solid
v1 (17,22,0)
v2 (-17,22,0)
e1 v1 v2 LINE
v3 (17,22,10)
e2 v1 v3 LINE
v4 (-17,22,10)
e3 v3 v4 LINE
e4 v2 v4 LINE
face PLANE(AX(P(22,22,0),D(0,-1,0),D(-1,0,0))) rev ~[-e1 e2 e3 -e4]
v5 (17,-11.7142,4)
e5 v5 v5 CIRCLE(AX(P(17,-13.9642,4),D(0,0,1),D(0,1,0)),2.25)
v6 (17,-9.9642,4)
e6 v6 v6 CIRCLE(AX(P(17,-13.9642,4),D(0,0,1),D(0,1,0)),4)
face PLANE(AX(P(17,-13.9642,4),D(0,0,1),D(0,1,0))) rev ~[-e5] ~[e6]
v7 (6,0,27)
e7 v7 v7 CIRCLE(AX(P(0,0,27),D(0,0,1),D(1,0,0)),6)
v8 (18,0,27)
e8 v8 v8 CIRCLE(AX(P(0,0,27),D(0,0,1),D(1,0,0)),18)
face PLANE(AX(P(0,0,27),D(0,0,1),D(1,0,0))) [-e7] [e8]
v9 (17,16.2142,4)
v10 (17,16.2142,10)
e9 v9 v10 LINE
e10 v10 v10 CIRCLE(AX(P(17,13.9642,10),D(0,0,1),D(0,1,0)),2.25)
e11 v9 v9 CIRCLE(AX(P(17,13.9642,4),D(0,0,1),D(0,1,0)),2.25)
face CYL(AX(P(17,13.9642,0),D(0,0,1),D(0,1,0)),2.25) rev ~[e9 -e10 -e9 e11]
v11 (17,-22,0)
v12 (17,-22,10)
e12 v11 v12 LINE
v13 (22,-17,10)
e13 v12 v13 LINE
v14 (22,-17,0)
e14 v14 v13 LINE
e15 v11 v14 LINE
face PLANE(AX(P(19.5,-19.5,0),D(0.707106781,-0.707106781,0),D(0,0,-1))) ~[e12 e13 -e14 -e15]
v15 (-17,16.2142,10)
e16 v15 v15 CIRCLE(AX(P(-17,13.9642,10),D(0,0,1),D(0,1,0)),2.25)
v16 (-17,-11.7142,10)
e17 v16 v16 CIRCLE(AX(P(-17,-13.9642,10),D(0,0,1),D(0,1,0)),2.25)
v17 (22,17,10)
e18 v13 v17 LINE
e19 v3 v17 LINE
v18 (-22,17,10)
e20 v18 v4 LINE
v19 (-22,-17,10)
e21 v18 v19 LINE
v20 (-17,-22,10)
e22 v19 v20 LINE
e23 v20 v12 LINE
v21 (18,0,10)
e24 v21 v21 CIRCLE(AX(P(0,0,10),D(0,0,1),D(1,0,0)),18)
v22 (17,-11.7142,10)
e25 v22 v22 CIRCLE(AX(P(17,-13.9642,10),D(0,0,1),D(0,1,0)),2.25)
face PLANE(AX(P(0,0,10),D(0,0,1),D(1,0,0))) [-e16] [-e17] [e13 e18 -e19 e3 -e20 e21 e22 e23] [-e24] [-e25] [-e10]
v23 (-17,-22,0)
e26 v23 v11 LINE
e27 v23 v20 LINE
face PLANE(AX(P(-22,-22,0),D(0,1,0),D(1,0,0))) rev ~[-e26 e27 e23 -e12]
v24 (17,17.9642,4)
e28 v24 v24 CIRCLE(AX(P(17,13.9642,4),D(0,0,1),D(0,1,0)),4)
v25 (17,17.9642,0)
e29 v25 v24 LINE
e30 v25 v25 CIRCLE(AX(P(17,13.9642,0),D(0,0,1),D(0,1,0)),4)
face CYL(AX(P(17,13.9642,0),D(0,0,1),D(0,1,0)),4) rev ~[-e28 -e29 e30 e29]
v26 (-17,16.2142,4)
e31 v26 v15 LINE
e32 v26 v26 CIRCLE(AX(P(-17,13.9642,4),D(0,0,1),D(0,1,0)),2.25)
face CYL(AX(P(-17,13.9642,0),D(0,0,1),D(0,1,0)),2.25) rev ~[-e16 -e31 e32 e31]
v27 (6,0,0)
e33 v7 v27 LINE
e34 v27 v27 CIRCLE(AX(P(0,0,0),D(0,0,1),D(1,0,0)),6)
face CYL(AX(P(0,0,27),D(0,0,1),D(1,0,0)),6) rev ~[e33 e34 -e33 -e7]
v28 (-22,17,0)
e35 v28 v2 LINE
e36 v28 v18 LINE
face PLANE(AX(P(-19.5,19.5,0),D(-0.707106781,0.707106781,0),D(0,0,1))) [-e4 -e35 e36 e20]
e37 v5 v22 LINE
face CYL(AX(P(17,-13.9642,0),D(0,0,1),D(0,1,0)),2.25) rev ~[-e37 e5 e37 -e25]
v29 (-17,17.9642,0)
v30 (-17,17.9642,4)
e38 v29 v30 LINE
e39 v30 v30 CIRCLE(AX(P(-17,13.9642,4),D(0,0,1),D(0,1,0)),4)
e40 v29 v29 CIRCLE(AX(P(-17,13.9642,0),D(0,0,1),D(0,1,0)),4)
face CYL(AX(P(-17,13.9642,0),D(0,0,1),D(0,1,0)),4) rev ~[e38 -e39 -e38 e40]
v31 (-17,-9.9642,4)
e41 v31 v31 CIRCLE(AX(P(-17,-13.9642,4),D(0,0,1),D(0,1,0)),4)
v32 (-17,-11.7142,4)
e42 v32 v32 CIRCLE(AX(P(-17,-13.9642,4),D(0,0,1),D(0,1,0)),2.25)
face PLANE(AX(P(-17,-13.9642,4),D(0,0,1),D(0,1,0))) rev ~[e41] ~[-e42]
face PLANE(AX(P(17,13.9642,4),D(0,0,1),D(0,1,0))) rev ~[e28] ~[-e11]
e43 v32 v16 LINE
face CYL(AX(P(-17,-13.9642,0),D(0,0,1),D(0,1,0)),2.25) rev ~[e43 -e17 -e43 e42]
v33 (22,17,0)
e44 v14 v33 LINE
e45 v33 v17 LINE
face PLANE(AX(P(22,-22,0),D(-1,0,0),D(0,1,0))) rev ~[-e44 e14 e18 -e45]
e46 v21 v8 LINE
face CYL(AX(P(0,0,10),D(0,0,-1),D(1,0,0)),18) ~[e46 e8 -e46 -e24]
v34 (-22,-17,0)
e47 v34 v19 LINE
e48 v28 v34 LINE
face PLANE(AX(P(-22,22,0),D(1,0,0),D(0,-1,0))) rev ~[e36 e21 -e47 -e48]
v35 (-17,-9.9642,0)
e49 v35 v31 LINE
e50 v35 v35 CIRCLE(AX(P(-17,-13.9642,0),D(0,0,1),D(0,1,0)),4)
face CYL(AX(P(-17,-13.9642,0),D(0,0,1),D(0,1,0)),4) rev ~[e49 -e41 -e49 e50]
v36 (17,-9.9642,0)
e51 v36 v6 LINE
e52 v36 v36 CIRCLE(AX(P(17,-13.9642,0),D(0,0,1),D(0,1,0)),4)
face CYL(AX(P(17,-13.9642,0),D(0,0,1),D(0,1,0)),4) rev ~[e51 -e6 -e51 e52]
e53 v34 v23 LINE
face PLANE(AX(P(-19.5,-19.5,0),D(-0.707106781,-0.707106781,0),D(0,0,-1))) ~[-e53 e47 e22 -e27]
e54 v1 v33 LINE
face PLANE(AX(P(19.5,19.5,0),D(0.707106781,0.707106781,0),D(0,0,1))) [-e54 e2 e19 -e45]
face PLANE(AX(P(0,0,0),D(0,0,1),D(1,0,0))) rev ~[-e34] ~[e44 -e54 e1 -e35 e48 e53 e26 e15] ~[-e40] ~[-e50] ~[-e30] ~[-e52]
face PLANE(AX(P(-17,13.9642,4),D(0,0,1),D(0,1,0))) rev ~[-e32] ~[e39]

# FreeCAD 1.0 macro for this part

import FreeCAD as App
import Part
import Sketcher

V = App.Vector


def edges_at(feature, points):
    """Names of the edges that pass closest to the given points."""
    edges = feature.Shape.Edges
    near = lambda p: min(range(len(edges)), key=lambda i: edges[i].distToShape(Part.Vertex(*p))[0])
    return sorted({f"Edge{near(p) + 1}" for p in points})


def add_polygon(sketch, points):
    """Adds a closed chain of lines whose ends are joined by coincident constraints."""
    first, n = sketch.GeometryCount, len(points)
    for a, b in zip(points, points[1:] + points[:1]):
        sketch.addGeometry(Part.LineSegment(App.Vector(*a, 0), App.Vector(*b, 0)), False)
    for i in range(n):
        sketch.addConstraint(Sketcher.Constraint("Coincident", first + i, 2, first + (i + 1) % n, 1))

doc = App.newDocument("Part")
body = doc.addObject("PartDesign::Body", "Body")

sketch1 = doc.addObject("Sketcher::SketchObject", "Sketch")
body.addObject(sketch1)
sketch1.AttachmentSupport = (doc.XY_Plane, [""])
sketch1.MapMode = "FlatFace"
add_polygon(sketch1, [(-22, 22), (-22, -22), (22, -22), (22, 22)])
sketch1.addConstraint([
    Sketcher.Constraint("Vertical", 0),
    Sketcher.Constraint("Horizontal", 1),
    Sketcher.Constraint("Vertical", 2),
    Sketcher.Constraint("Horizontal", 3),
    Sketcher.Constraint("Symmetric", 0, 2, 2, 2, -1, 1),
    Sketcher.Constraint("Equal", 3, 0),
    Sketcher.Constraint("DistanceX", 1, 1, 1, 2, 44.0),
])
pad1 = doc.addObject("PartDesign::Pad", "Pad")
body.addObject(pad1)
pad1.Profile = sketch1
pad1.Length = 10

sketch2 = doc.addObject("Sketcher::SketchObject", "Sketch001")
body.addObject(sketch2)
sketch2.AttachmentSupport = (doc.XY_Plane, [""])
sketch2.MapMode = "FlatFace"
sketch2.AttachmentOffset = App.Placement(V(0, 0, 10), App.Rotation())
sketch2.addGeometry(Part.Circle(V(0, 0, 0), V(0, 0, 1), 18), False)
sketch2.addConstraint([
    Sketcher.Constraint("Coincident", 0, 3, -1, 1),
    Sketcher.Constraint("Diameter", 0, 36.0),
])
pad2 = doc.addObject("PartDesign::Pad", "Pad001")
body.addObject(pad2)
pad2.Profile = sketch2
pad2.Length = 17

sketch3 = doc.addObject("Sketcher::SketchObject", "Sketch002")
body.addObject(sketch3)
sketch3.AttachmentSupport = (doc.XY_Plane, [""])
sketch3.MapMode = "FlatFace"
sketch3.AttachmentOffset = App.Placement(V(0, 0, 27), App.Rotation())
sketch3.addGeometry(Part.Circle(V(0, 0, 0), V(0, 0, 1), 6), False)
sketch3.addConstraint([
    Sketcher.Constraint("Coincident", 0, 3, -1, 1),
    Sketcher.Constraint("Diameter", 0, 12.0),
])
pocket1 = doc.addObject("PartDesign::Pocket", "Pocket")
body.addObject(pocket1)
pocket1.Profile = sketch3
pocket1.Type = "ThroughAll"
doc.recompute()

chamfer = doc.addObject("PartDesign::Chamfer", "Chamfer")
body.addObject(chamfer)
chamfer.Base = (pocket1, edges_at(pocket1, [
    (22, 22, 5),
    (22, -22, 5),
    (-22, -22, 5),
    (-22, 22, 5),
]))
chamfer.Size = 5

sketch4 = doc.addObject("Sketcher::SketchObject", "Sketch003")
body.addObject(sketch4)
sketch4.AttachmentSupport = (doc.XY_Plane, [""])
sketch4.MapMode = "FlatFace"
sketch4.addGeometry([
    Part.Circle(V(-17, 13.9642, 0), V(0, 0, 1), 2.25),
    Part.Circle(V(17, -13.9642, 0), V(0, 0, 1), 2.25),
    Part.Circle(V(17, 13.9642, 0), V(0, 0, 1), 2.25),
    Part.Circle(V(-17, -13.9642, 0), V(0, 0, 1), 2.25),
], False)
sketch4.addConstraint([
    Sketcher.Constraint("Equal", 0, 1),
    Sketcher.Constraint("Equal", 1, 2),
    Sketcher.Constraint("Equal", 2, 3),
    Sketcher.Constraint("Symmetric", 0, 3, 1, 3, -1, 1),
    Sketcher.Constraint("Symmetric", 2, 3, 3, 3, -1, 1),
    Sketcher.Constraint("Symmetric", 0, 3, 2, 3, -2),
    Sketcher.Constraint("Diameter", 0, 4.5),
    Sketcher.Constraint("DistanceX", 0, 3, -1, 1, 17.0),
    Sketcher.Constraint("DistanceY", -1, 1, 0, 3, 13.9642),
])
doc.recompute()
hole = doc.addObject("PartDesign::Hole", "Hole")
body.addObject(hole)
hole.Profile = sketch4
hole.ThreadType = "None"
hole.Diameter = 4.5
hole.DepthType = "ThroughAll"
hole.Reversed = True

sketch5 = doc.addObject("Sketcher::SketchObject", "Sketch004")
body.addObject(sketch5)
sketch5.AttachmentSupport = (doc.XY_Plane, [""])
sketch5.MapMode = "FlatFace"
sketch5.addGeometry([
    Part.Circle(V(17, 13.9642, 0), V(0, 0, 1), 4),
    Part.Circle(V(-17, 13.9642, 0), V(0, 0, 1), 4),
    Part.Circle(V(-17, -13.9642, 0), V(0, 0, 1), 4),
    Part.Circle(V(17, -13.9642, 0), V(0, 0, 1), 4),
], False)
sketch5.addConstraint([
    Sketcher.Constraint("Equal", 0, 1),
    Sketcher.Constraint("Equal", 1, 2),
    Sketcher.Constraint("Equal", 2, 3),
    Sketcher.Constraint("Symmetric", 0, 3, 2, 3, -1, 1),
    Sketcher.Constraint("Symmetric", 1, 3, 3, 3, -1, 1),
    Sketcher.Constraint("Symmetric", 0, 3, 1, 3, -2),
    Sketcher.Constraint("Diameter", 0, 8.0),
    Sketcher.Constraint("DistanceX", -1, 1, 0, 3, 17.0),
    Sketcher.Constraint("DistanceY", -1, 1, 0, 3, 13.9642),
])
doc.recompute()
hole2 = doc.addObject("PartDesign::Hole", "Hole001")
body.addObject(hole2)
hole2.Profile = sketch5
hole2.ThreadType = "None"
hole2.Diameter = 8
hole2.DepthType = "Dimension"
hole2.Depth = 4
hole2.DrillPoint = "Flat"
hole2.Reversed = True

doc.recompute()
